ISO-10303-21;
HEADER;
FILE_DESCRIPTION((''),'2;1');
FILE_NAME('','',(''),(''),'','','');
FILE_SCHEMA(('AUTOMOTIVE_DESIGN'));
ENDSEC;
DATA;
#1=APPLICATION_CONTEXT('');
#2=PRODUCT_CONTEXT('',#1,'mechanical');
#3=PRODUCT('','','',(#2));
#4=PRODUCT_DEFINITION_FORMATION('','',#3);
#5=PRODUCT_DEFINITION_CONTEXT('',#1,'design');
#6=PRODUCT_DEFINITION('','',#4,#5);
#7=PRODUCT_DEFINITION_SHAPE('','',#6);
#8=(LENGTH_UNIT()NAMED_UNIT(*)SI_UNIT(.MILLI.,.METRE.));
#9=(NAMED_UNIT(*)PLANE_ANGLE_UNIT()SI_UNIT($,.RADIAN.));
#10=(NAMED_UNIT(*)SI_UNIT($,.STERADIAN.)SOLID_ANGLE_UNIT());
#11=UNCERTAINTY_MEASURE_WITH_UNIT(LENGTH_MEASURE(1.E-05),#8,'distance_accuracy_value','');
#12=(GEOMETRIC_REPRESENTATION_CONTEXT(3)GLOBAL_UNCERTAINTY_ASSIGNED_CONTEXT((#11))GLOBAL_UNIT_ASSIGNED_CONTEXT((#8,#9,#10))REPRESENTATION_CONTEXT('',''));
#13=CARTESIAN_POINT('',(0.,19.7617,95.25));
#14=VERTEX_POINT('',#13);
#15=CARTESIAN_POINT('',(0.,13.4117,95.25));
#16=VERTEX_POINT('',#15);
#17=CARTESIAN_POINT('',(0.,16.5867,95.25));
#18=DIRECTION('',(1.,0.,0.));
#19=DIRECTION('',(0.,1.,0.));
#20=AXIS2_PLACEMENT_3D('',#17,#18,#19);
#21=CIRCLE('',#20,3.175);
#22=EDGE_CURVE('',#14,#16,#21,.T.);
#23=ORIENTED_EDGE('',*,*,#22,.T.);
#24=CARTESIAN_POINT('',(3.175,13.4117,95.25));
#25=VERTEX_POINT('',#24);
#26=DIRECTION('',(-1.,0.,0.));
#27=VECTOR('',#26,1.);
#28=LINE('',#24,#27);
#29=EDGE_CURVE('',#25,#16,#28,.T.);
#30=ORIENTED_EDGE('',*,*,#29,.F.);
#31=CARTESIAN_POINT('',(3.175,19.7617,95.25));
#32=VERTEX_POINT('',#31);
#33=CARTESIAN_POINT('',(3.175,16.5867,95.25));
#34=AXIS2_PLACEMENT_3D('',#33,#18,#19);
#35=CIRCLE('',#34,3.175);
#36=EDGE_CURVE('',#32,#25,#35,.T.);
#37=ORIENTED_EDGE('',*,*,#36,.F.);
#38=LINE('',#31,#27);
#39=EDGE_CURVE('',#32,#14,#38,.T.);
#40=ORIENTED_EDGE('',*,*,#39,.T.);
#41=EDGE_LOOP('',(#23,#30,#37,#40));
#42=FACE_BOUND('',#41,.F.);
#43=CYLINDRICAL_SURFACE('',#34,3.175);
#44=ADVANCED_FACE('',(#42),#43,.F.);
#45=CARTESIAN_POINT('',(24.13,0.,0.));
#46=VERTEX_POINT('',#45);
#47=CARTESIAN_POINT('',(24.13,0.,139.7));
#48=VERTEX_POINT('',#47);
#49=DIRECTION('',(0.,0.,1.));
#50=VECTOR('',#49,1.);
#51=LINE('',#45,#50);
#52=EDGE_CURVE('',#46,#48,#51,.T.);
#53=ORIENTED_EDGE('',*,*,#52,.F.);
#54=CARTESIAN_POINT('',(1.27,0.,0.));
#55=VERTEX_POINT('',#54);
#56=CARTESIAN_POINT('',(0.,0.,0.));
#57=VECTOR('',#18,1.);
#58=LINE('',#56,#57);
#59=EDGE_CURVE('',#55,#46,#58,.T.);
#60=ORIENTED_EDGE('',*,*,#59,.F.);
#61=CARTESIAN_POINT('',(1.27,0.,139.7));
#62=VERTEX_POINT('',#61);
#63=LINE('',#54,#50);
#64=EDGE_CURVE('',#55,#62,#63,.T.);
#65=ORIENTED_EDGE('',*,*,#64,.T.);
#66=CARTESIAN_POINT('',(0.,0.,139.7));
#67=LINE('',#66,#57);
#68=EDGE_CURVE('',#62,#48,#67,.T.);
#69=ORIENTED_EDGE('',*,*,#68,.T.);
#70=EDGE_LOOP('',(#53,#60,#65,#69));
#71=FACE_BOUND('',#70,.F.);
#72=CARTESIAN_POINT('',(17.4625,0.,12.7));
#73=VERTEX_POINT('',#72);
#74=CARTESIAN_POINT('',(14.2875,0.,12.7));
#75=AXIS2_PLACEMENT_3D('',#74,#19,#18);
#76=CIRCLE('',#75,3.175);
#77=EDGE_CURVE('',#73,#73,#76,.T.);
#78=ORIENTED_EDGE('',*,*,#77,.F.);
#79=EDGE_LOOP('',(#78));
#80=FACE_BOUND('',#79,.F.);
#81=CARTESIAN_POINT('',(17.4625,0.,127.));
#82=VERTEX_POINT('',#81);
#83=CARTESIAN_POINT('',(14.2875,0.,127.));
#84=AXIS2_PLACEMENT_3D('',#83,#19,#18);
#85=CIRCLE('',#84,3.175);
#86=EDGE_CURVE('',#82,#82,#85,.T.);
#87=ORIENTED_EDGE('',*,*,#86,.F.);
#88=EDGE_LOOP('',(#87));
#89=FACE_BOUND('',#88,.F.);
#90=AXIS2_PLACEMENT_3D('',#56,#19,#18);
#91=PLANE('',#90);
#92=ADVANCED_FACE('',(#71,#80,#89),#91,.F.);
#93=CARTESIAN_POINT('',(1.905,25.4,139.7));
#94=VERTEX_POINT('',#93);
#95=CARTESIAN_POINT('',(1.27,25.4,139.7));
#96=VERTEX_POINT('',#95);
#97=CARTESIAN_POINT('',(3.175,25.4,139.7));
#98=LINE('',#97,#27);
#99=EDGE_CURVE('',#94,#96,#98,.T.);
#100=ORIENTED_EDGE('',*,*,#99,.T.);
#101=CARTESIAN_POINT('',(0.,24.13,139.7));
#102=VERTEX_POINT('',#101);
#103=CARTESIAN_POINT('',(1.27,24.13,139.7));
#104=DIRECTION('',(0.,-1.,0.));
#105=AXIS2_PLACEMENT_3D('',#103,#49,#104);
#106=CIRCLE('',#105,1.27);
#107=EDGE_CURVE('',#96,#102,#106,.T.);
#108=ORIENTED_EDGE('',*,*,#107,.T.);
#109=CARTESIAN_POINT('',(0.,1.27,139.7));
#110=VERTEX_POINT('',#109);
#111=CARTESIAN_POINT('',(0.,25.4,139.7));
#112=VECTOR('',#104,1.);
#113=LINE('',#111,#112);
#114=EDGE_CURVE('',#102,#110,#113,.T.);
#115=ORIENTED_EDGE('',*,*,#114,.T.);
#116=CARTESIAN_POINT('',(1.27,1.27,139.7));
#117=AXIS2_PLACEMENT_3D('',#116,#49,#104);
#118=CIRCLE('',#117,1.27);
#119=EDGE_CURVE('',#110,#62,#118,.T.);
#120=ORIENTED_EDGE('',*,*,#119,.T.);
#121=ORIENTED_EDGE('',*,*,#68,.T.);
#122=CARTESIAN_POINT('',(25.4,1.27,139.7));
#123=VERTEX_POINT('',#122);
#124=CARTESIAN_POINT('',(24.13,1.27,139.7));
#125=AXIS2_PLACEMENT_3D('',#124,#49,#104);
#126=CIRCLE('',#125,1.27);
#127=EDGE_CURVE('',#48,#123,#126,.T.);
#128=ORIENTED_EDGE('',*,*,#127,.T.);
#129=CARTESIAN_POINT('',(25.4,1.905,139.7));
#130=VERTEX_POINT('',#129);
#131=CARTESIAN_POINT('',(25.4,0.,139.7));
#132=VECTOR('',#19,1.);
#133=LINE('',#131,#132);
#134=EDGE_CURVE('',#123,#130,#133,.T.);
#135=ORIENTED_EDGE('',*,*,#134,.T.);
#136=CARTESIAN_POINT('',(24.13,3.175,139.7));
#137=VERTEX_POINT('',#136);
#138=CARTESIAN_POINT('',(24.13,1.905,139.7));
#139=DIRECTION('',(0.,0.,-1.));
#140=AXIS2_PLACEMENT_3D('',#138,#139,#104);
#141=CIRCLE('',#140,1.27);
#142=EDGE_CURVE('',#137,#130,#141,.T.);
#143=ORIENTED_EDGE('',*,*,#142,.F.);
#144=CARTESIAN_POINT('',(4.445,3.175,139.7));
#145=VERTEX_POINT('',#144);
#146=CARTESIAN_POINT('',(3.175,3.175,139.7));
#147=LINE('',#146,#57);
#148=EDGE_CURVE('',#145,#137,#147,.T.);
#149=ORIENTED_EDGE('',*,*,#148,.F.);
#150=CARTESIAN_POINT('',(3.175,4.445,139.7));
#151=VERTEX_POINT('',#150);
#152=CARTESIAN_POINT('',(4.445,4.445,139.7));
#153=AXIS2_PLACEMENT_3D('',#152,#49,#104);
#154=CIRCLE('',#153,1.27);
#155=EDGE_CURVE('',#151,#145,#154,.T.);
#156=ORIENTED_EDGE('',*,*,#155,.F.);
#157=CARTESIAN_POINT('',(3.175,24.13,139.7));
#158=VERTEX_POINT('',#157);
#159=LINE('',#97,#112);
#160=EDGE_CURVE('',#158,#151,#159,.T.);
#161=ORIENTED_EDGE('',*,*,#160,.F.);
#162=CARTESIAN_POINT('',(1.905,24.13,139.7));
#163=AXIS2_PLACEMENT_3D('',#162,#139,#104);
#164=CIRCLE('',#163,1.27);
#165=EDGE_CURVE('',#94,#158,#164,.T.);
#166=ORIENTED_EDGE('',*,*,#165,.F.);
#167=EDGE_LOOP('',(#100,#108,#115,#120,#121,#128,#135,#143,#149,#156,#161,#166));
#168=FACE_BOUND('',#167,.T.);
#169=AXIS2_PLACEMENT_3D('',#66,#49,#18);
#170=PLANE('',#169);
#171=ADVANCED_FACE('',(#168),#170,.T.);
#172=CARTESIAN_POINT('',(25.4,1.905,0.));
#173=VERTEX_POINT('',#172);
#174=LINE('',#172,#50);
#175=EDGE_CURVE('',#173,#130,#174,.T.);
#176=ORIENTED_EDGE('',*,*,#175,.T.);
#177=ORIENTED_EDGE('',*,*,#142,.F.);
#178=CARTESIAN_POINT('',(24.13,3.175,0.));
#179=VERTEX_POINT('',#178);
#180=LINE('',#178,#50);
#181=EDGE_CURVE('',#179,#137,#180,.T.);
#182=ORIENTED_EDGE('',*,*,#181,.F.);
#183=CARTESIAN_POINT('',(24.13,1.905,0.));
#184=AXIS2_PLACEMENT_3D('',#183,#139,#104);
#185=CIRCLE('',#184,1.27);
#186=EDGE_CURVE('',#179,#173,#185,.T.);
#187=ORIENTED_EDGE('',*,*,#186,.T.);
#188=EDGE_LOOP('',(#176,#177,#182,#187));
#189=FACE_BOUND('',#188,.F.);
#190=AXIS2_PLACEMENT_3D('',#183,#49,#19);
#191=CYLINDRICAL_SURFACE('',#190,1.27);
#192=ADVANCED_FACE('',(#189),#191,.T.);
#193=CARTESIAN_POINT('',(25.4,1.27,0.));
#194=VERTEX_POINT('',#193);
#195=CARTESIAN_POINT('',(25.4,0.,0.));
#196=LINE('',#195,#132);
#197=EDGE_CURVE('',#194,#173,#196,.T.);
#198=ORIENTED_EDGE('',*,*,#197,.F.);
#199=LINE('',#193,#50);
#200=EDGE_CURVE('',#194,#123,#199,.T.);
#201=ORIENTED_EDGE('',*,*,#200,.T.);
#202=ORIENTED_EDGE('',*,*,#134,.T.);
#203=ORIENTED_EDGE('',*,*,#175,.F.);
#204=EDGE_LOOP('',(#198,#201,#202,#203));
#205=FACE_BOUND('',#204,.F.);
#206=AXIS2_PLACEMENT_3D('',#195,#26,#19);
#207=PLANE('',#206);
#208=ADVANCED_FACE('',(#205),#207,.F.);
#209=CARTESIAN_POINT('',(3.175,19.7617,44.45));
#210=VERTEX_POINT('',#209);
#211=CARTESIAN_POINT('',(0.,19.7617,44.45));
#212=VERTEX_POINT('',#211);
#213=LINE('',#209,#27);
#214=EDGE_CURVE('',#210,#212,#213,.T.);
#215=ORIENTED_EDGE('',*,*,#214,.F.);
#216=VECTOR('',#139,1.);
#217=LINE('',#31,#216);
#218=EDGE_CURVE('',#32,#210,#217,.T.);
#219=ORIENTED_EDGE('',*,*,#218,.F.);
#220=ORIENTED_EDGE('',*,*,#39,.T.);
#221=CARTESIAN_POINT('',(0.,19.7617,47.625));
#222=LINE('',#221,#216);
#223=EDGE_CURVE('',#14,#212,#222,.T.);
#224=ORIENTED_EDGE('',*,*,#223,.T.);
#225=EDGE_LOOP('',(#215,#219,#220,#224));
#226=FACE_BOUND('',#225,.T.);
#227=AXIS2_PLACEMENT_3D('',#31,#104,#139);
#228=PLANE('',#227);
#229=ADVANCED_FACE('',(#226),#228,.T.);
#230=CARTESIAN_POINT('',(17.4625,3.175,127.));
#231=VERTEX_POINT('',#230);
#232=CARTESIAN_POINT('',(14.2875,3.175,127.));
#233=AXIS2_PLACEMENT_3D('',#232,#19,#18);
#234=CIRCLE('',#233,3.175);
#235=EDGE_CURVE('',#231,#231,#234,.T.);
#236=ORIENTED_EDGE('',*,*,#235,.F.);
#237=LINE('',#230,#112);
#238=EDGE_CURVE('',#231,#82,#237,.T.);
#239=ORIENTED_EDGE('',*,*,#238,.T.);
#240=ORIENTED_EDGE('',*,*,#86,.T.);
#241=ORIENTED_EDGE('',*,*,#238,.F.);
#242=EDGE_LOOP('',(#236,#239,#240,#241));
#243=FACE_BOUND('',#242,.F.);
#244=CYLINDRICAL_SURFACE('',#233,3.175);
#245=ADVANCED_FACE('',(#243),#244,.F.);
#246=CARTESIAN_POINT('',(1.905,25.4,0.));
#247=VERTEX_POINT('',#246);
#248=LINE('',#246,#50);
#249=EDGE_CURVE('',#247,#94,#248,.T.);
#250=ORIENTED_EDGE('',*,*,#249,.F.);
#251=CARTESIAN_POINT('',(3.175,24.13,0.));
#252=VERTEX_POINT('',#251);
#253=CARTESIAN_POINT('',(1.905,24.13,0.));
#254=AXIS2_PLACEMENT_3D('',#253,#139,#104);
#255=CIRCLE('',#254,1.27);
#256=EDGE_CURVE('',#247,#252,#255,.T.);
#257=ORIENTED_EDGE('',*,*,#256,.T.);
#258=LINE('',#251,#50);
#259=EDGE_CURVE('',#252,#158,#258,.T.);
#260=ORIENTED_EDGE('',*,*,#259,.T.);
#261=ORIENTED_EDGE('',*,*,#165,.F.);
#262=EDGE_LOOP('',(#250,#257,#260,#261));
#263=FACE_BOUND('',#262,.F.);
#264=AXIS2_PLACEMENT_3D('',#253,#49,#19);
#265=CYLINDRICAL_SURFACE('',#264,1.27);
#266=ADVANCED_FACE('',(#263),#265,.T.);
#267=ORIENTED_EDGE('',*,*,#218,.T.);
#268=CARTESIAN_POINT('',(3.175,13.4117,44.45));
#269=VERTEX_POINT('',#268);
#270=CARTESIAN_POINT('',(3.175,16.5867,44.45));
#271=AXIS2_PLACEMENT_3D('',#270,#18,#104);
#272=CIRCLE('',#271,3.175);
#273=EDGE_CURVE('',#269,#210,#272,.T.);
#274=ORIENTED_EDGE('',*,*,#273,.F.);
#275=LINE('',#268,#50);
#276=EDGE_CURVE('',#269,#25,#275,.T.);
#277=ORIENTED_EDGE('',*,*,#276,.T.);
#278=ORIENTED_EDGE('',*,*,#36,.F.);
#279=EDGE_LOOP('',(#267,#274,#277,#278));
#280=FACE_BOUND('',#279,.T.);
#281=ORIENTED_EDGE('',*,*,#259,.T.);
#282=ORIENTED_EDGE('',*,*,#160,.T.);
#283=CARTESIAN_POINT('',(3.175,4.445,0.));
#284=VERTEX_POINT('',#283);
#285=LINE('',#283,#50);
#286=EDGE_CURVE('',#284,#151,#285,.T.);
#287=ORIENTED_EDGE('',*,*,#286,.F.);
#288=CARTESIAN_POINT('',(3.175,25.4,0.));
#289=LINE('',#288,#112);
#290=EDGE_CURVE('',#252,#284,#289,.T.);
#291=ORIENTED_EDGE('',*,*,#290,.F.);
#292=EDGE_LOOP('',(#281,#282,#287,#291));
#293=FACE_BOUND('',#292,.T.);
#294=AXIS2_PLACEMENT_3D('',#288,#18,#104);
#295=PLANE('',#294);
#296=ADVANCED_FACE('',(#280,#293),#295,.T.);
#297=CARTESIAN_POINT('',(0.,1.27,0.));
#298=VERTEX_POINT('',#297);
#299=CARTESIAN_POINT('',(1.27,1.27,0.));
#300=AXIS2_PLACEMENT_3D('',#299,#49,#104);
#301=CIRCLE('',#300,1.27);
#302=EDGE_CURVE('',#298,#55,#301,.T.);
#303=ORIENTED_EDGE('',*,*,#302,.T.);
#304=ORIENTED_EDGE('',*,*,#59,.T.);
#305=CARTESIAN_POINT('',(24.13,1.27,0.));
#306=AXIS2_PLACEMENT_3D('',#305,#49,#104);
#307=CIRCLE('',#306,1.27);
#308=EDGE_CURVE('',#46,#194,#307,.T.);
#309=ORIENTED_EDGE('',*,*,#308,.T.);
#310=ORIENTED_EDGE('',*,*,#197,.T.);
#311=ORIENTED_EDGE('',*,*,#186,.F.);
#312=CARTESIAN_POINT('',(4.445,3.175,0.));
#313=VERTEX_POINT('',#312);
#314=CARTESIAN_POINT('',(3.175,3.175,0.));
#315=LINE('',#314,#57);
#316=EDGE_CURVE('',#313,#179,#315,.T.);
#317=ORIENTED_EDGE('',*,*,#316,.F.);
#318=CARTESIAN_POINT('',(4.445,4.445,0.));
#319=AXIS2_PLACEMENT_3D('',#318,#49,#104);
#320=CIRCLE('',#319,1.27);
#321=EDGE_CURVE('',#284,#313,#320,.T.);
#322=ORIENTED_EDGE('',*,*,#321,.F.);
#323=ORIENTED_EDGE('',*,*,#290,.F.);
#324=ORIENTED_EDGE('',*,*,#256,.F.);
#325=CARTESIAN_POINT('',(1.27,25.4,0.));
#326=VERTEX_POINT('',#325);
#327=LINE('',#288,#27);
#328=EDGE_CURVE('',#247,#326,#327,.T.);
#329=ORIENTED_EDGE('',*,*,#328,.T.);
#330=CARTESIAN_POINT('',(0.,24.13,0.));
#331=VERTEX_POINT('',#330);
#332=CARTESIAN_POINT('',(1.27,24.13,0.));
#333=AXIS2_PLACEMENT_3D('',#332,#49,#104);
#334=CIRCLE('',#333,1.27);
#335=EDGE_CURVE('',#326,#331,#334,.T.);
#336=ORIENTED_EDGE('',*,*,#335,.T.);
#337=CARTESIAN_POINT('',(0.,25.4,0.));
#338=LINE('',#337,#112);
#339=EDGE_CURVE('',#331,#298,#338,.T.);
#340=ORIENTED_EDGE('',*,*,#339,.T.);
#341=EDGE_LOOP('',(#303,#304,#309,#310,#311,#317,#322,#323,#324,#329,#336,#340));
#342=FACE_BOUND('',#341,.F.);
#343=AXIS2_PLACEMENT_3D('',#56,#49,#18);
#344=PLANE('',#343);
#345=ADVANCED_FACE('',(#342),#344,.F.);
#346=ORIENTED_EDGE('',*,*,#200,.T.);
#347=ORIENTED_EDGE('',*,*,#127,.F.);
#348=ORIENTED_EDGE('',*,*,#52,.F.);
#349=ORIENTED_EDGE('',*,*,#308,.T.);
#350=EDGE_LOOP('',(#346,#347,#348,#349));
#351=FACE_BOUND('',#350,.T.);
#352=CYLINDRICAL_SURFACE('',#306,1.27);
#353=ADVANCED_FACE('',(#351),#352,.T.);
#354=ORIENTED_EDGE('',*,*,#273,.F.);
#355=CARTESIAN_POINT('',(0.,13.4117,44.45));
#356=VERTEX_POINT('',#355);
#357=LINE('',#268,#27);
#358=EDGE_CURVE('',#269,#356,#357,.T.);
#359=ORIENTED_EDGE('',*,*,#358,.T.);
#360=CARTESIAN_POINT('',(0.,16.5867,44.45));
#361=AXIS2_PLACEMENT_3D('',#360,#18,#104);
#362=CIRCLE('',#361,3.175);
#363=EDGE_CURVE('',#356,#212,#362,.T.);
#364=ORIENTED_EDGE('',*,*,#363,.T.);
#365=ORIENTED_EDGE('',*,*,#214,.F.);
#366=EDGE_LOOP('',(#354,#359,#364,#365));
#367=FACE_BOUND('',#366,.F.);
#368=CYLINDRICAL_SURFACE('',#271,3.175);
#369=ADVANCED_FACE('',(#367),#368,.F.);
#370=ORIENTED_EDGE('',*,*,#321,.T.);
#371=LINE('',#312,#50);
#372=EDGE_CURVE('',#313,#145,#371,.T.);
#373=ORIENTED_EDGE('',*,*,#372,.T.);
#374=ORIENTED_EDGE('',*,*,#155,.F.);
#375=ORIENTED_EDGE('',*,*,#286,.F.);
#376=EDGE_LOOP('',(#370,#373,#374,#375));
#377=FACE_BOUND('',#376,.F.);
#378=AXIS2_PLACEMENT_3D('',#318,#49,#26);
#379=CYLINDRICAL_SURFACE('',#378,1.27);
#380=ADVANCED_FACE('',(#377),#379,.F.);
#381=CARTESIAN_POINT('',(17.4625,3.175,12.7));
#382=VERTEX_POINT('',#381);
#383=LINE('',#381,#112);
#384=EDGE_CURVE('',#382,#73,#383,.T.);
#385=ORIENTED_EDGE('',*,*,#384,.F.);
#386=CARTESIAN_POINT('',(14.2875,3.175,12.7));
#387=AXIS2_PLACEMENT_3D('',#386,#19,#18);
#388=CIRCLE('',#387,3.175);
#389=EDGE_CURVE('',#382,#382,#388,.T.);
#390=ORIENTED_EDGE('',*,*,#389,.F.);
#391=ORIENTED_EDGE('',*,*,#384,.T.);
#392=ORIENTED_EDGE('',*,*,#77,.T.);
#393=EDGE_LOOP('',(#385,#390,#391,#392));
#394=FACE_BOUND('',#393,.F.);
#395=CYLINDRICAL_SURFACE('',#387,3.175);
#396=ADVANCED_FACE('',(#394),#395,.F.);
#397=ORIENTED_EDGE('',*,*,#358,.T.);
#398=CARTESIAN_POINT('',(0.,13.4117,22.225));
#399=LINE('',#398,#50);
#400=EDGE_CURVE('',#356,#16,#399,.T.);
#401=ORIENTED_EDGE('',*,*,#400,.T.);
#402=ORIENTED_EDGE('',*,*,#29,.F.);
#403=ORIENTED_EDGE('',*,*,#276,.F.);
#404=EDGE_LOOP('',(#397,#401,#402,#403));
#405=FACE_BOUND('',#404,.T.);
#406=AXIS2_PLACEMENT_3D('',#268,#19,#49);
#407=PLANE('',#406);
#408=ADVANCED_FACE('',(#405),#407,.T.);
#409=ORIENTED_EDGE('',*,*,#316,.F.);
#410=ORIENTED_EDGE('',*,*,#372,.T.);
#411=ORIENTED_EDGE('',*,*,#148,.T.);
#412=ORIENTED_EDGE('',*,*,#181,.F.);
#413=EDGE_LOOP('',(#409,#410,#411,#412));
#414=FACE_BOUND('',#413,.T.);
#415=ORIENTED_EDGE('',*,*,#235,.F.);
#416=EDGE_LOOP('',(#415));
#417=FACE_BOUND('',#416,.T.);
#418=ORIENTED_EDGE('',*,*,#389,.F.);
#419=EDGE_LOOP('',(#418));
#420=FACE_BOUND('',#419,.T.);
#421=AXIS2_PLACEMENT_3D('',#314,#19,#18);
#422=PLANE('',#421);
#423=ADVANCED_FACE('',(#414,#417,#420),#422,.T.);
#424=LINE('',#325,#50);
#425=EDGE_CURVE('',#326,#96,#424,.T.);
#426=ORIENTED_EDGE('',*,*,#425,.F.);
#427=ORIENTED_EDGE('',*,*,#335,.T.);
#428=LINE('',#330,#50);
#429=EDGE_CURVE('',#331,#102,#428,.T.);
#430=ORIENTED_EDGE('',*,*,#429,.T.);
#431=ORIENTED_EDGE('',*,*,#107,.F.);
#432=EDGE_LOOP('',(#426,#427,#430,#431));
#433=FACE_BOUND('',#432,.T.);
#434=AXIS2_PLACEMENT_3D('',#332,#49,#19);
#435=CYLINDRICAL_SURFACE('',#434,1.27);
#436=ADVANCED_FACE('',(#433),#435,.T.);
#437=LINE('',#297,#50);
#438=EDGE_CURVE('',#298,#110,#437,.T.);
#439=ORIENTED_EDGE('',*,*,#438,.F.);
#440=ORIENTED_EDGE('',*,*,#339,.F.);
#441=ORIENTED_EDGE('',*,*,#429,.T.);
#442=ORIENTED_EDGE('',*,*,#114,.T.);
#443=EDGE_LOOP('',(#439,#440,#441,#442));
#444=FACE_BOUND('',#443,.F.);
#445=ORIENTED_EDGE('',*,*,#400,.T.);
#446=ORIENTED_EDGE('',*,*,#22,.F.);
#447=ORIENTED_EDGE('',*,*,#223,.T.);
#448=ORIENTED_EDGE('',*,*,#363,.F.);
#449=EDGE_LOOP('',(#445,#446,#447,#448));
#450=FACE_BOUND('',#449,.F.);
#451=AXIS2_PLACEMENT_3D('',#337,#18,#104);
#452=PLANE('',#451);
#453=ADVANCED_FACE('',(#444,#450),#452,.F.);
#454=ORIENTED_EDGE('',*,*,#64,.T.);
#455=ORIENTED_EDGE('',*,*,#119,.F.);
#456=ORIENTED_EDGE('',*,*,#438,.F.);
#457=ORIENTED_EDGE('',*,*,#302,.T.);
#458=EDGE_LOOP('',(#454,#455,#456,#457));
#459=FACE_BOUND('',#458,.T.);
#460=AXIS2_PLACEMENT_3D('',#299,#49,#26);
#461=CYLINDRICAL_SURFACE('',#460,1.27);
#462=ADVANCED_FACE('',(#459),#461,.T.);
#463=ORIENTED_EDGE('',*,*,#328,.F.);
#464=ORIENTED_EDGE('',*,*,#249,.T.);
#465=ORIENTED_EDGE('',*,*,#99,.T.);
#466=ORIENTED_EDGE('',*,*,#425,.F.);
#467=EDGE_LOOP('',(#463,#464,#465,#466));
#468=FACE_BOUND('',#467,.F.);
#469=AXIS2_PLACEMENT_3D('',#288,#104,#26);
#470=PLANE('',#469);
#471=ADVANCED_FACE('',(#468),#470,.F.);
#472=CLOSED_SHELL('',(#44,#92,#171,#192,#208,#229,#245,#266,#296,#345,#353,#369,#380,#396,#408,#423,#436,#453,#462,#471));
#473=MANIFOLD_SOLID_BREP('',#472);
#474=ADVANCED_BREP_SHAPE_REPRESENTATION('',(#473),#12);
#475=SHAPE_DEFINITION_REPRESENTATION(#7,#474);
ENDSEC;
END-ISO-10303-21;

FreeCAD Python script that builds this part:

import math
import FreeCAD as App
import Part
import Sketcher
from FreeCAD import Vector
Q = App.Units.Quantity


def edges_at(feature, points):
    """Names of the edges that pass closest to the given points."""
    edges = feature.Shape.Edges
    near = lambda p: min(range(len(edges)), key=lambda i: edges[i].distToShape(Part.Vertex(*p))[0])
    return sorted({f"Edge{near(p) + 1}" for p in points})

doc = App.newDocument("Part")
body = doc.addObject("PartDesign::Body", "Body")

# Sketch on XY plane
sketch1 = body.newObject("Sketcher::SketchObject", "Sketch")
sketch1.AttachmentSupport = (doc.getObject("XY_Plane"), [""])
sketch1.MapMode = "FlatFace"
sketch1.addGeometry([
    Part.LineSegment(Vector(0, 25.4, 0), Vector(0, 0, 0)),  # 0
    Part.LineSegment(Vector(0, 0, 0), Vector(25.4, 0, 0)),  # 1
    Part.LineSegment(Vector(25.4, 0, 0), Vector(25.4, 3.2, 0)),  # 2
    Part.LineSegment(Vector(25.4, 3.2, 0), Vector(3.2, 3.2, 0)),  # 3
    Part.LineSegment(Vector(3.2, 3.2, 0), Vector(3.2, 25.4, 0)),  # 4
    Part.LineSegment(Vector(3.2, 25.4, 0), Vector(0, 25.4, 0)),  # 5
], False)
sketch1.addConstraint([
    Sketcher.Constraint("Coincident", 0, 2, 1, 1),
    Sketcher.Constraint("Coincident", 1, 2, 2, 1),
    Sketcher.Constraint("Coincident", 2, 2, 3, 1),
    Sketcher.Constraint("Coincident", 3, 2, 4, 1),
    Sketcher.Constraint("Coincident", 4, 2, 5, 1),
    Sketcher.Constraint("Coincident", 5, 2, 0, 1),
    Sketcher.Constraint("Vertical", 0),
    Sketcher.Constraint("Horizontal", 1),
    Sketcher.Constraint("Vertical", 2),
    Sketcher.Constraint("Horizontal", 3),
    Sketcher.Constraint("Vertical", 4),
    Sketcher.Constraint("Horizontal", 5),
    Sketcher.Constraint("Coincident", 0, 2, -1, 1),
    Sketcher.Constraint("Equal", 1, 0),
    Sketcher.Constraint("Equal", 5, 2),
    Sketcher.Constraint("DistanceX", 1, 1, 1, 2, Q("1 in")),
    Sketcher.Constraint("DistanceX", 5, 2, 5, 1, Q("0.125 in")),
])
pad1 = body.newObject("PartDesign::Pad", "Pad")
pad1.Profile = sketch1
pad1.Length = Q("5.5 in")
doc.recompute()

fillet = body.newObject("PartDesign::Fillet", "Fillet")
fillet.Base = (pad1, edges_at(pad1, [(3.175, 25.4, 69.85)]))
fillet.Radius = Q("0.05 in")
doc.recompute()

fillet2 = body.newObject("PartDesign::Fillet", "Fillet001")
fillet2.Base = (fillet, edges_at(fillet, [
    (0, 25.4, 69.85),
    (25.4, 3.175, 69.85),
    (25.4, 0, 69.85),
    (0, 0, 69.85),
    (3.175, 3.175, 69.85),
]))
fillet2.Radius = Q("0.05 in")

# Sketch on XZ plane
sketch2 = body.newObject("Sketcher::SketchObject", "Sketch001")
sketch2.AttachmentSupport = (doc.getObject("XZ_Plane"), [""])
sketch2.MapMode = "FlatFace"
sketch2.AttachmentOffset = App.Placement(Vector(0, 0, -0.125 * 25.4), App.Rotation())
sketch2.addGeometry([
    Part.Circle(Vector(14.3, 12.7, 0), Vector(0, 0, 1), 3.2),
    Part.Circle(Vector(14.3, 127, 0), Vector(0, 0, 1), 3.2),
], False)
sketch2.addConstraint([
    Sketcher.Constraint("Equal", 0, 1),
    Sketcher.Constraint("Vertical", 0, 3, 1, 3),
    Sketcher.Constraint("Diameter", 0, Q("0.25 in")),
    Sketcher.Constraint("DistanceY", -1, 1, 0, 3, Q("0.5 in")),
    Sketcher.Constraint("DistanceY", -1, 1, 1, 3, Q("5 in")),
    Sketcher.Constraint("DistanceX", -1, 1, 0, 3, Q("0.5625 in")),
])
pocket1 = body.newObject("PartDesign::Pocket", "Pocket")
pocket1.Profile = sketch2
pocket1.Length = Q("6 in")
pocket1.Reversed = True

# Sketch on YZ plane
sketch3 = body.newObject("Sketcher::SketchObject", "Sketch002")
sketch3.AttachmentSupport = (doc.getObject("YZ_Plane"), [""])
sketch3.MapMode = "FlatFace"
sketch3.AttachmentOffset = App.Placement(Vector(0, 0, 0.125 * 25.4), App.Rotation())
sketch3.addGeometry([
    Part.LineSegment(Vector(19.8, 44.5, 0), Vector(19.8, 95.2, 0)),
    Part.ArcOfCircle(Part.Circle(Vector(16.6, 95.2, 0), Vector(0, 0, 1), 3.2), math.radians(0), math.radians(180)),
    Part.LineSegment(Vector(13.4, 95.2, 0), Vector(13.4, 44.5, 0)),
    Part.ArcOfCircle(Part.Circle(Vector(16.6, 44.5, 0), Vector(0, 0, 1), 3.2), math.radians(180), math.radians(360)),
], False)
sketch3.addConstraint([
    Sketcher.Constraint("Tangent", 0, 2, 1, 1),
    Sketcher.Constraint("Tangent", 1, 2, 2, 1),
    Sketcher.Constraint("Tangent", 2, 2, 3, 1),
    Sketcher.Constraint("Tangent", 3, 2, 0, 1),
    Sketcher.Constraint("Vertical", 0),
    Sketcher.Constraint("Vertical", 2),
    Sketcher.Constraint("DistanceY", 0, 1, 0, 2, Q("2 in")),
    Sketcher.Constraint("DistanceY", -1, 1, 3, 3, Q("1.75 in")),
    Sketcher.Constraint("Radius", 1, Q("0.125 in")),
    Sketcher.Constraint("DistanceX", -1, 1, 1, 3, Q("16.5867 mm")),
])
pocket2 = body.newObject("PartDesign::Pocket", "Pocket001")
pocket2.Profile = sketch3
pocket2.Length = Q("6 in")

doc.recompute()
